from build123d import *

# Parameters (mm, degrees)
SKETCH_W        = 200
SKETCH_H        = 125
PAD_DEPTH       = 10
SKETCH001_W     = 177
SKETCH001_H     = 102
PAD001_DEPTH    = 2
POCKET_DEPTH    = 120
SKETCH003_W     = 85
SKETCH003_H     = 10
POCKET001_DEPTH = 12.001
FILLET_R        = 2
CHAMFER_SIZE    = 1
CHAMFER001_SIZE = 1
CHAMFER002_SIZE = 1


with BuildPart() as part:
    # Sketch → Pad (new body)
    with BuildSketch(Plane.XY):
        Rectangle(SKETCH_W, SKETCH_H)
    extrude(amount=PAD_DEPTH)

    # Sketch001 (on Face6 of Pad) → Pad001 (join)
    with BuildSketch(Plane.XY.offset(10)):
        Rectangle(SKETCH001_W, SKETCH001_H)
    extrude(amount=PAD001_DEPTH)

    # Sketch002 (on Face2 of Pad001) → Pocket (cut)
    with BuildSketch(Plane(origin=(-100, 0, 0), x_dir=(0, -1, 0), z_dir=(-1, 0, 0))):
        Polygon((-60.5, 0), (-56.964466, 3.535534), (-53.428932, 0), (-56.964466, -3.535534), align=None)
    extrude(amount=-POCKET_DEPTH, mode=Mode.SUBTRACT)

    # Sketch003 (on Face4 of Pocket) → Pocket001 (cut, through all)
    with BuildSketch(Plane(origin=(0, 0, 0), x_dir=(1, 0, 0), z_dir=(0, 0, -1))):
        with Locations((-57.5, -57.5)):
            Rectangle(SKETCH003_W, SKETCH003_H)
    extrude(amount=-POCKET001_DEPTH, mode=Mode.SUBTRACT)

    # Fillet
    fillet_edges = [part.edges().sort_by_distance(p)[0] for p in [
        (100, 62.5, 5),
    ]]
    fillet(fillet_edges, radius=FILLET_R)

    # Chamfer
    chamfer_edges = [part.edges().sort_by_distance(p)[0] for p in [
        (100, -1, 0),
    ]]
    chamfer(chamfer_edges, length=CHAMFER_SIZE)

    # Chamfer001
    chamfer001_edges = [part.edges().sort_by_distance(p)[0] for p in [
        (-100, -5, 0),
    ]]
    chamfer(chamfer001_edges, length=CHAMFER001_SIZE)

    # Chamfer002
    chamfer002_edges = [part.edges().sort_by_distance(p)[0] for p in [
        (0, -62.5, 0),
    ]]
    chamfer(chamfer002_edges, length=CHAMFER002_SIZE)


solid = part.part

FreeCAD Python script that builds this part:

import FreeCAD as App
import Part
import Sketcher

V = App.Vector
Q = App.Units.Quantity


def edges_at(feature, points):
    """Names of the edges that pass closest to the given points."""
    edges = feature.Shape.Edges
    near = lambda p: min(range(len(edges)), key=lambda i: edges[i].distToShape(Part.Vertex(*p))[0])
    return sorted({f"Edge{near(p) + 1}" for p in points})

doc = App.newDocument("Part")
body = doc.addObject("PartDesign::Body", "Body")

sketch1 = body.newObject("Sketcher::SketchObject", "Sketch")
sketch1.AttachmentSupport = (doc.getObject("XY_Plane"), [""])
sketch1.MapMode = "FlatFace"
sketch1.addGeometry([
    Part.LineSegment(V(-100, 62, 0), V(-100, -62, 0)),
    Part.LineSegment(V(-100, -62, 0), V(100, -62, 0)),
    Part.LineSegment(V(100, -62, 0), V(100, 62, 0)),
    Part.LineSegment(V(100, 62, 0), V(-100, 62, 0)),
], False)
sketch1.addConstraint([
    Sketcher.Constraint("Coincident", 0, 2, 1, 1),
    Sketcher.Constraint("Coincident", 1, 2, 2, 1),
    Sketcher.Constraint("Coincident", 2, 2, 3, 1),
    Sketcher.Constraint("Coincident", 3, 2, 0, 1),
    Sketcher.Constraint("Vertical", 0),
    Sketcher.Constraint("Horizontal", 1),
    Sketcher.Constraint("Vertical", 2),
    Sketcher.Constraint("Horizontal", 3),
    Sketcher.Constraint("Symmetric", 0, 2, 2, 2, -1, 1),
    Sketcher.Constraint("DistanceX", 1, 1, 1, 2, Q("200 mm")),
    Sketcher.Constraint("DistanceY", 0, 2, 0, 1, Q("125 mm")),
])
pad1 = body.newObject("PartDesign::Pad", "Pad")
pad1.Profile = sketch1
pad1.Length = 10

sketch2 = body.newObject("Sketcher::SketchObject", "Sketch001")
sketch2.AttachmentSupport = (doc.getObject("XY_Plane"), [""])
sketch2.MapMode = "FlatFace"
sketch2.AttachmentOffset = App.Placement(V(0, 0, 10), App.Rotation())
sketch2.addGeometry([
    Part.LineSegment(V(-88, 51, 0), V(-88, -51, 0)),
    Part.LineSegment(V(-88, -51, 0), V(88, -51, 0)),
    Part.LineSegment(V(88, -51, 0), V(88, 51, 0)),
    Part.LineSegment(V(88, 51, 0), V(-88, 51, 0)),
], False)
sketch2.addConstraint([
    Sketcher.Constraint("Coincident", 0, 2, 1, 1),
    Sketcher.Constraint("Coincident", 1, 2, 2, 1),
    Sketcher.Constraint("Coincident", 2, 2, 3, 1),
    Sketcher.Constraint("Coincident", 3, 2, 0, 1),
    Sketcher.Constraint("Vertical", 0),
    Sketcher.Constraint("Horizontal", 1),
    Sketcher.Constraint("Vertical", 2),
    Sketcher.Constraint("Horizontal", 3),
    Sketcher.Constraint("Symmetric", 0, 2, 2, 2, -1, 1),
    Sketcher.Constraint("DistanceX", 1, 1, 1, 2, Q("177 mm")),
    Sketcher.Constraint("DistanceY", 0, 2, 0, 1, Q("102 mm")),
])
pad2 = body.newObject("PartDesign::Pad", "Pad001")
pad2.Profile = sketch2
pad2.Length = 2

sketch3 = body.newObject("Sketcher::SketchObject", "Sketch002")
sketch3.AttachmentSupport = (doc.getObject("YZ_Plane"), [""])
sketch3.MapMode = "FlatFace"
sketch3.AttachmentOffset = App.Placement(V(0, 0, -100), App.Rotation())
sketch3.addGeometry([
    Part.LineSegment(V(57, 4, 0), V(60, 0, 0)),
    Part.LineSegment(V(60, 0, 0), V(57, -4, 0)),
    Part.LineSegment(V(57, -4, 0), V(53, 0, 0)),
    Part.LineSegment(V(53, 0, 0), V(57, 4, 0)),
], False)
sketch3.addConstraint([
    Sketcher.Constraint("Coincident", 0, 2, 1, 1),
    Sketcher.Constraint("Coincident", 1, 2, 2, 1),
    Sketcher.Constraint("Coincident", 2, 2, 3, 1),
    Sketcher.Constraint("Coincident", 3, 2, 0, 1),
    Sketcher.Constraint("Symmetric", 1, 2, 3, 2, -1),
    Sketcher.Constraint("PointOnObject", 0, 2, -1),
    Sketcher.Constraint("PointOnObject", 2, 2, -1),
    Sketcher.Constraint("Perpendicular", 0, 1),
    Sketcher.Constraint("Perpendicular", 1, 2),
    Sketcher.Constraint("Distance", 0, Q("5 mm")),
    Sketcher.Constraint("DistanceX", -1, 1, 0, 2, Q("60.5 mm")),
])
pocket1 = body.newObject("PartDesign::Pocket", "Pocket")
pocket1.Profile = sketch3
pocket1.Length = 120
pocket1.Reversed = True

sketch4 = body.newObject("Sketcher::SketchObject", "Sketch003")
sketch4.AttachmentSupport = (doc.getObject("XY_Plane"), [""])
sketch4.MapMode = "FlatFace"
sketch4.addGeometry([
    Part.LineSegment(V(-100, 52, 0), V(-100, 62, 0)),
    Part.LineSegment(V(-100, 62, 0), V(-15, 62, 0)),
    Part.LineSegment(V(-15, 62, 0), V(-15, 52, 0)),
    Part.LineSegment(V(-15, 52, 0), V(-100, 52, 0)),
], False)
sketch4.addConstraint([
    Sketcher.Constraint("Coincident", 0, 2, 1, 1),
    Sketcher.Constraint("Coincident", 1, 2, 2, 1),
    Sketcher.Constraint("Coincident", 2, 2, 3, 1),
    Sketcher.Constraint("Coincident", 3, 2, 0, 1),
    Sketcher.Constraint("Vertical", 0),
    Sketcher.Constraint("Horizontal", 1),
    Sketcher.Constraint("Vertical", 2),
    Sketcher.Constraint("Horizontal", 3),
    Sketcher.Constraint("DistanceX", 1, 1, 1, 2, Q("85 mm")),
    Sketcher.Constraint("DistanceY", 0, 1, 0, 2, Q("10 mm")),
    Sketcher.Constraint("DistanceX", 0, 2, -1, 1, Q("100 mm")),
    Sketcher.Constraint("DistanceY", -1, 1, 0, 2, Q("62.5 mm")),
])
pocket2 = body.newObject("PartDesign::Pocket", "Pocket001")
pocket2.Profile = sketch4
pocket2.Type = "ThroughAll"
pocket2.Reversed = True
doc.recompute()

fillet = body.newObject("PartDesign::Fillet", "Fillet")
fillet.Base = (pocket2, edges_at(pocket2, [(100, 62.5, 5)]))
fillet.Radius = 2
doc.recompute()

chamfer = body.newObject("PartDesign::Chamfer", "Chamfer")
chamfer.Base = (fillet, edges_at(fillet, [(100, -1, 0)]))
chamfer.Size = 1
doc.recompute()

chamfer2 = body.newObject("PartDesign::Chamfer", "Chamfer001")
chamfer2.Base = (chamfer, edges_at(chamfer, [(-100, -5, 0)]))
chamfer2.Size = 1
doc.recompute()

chamfer3 = body.newObject("PartDesign::Chamfer", "Chamfer002")
chamfer3.Base = (chamfer2, edges_at(chamfer2, [(0, -62.5, 0)]))
chamfer3.Size = 1

doc.recompute()
